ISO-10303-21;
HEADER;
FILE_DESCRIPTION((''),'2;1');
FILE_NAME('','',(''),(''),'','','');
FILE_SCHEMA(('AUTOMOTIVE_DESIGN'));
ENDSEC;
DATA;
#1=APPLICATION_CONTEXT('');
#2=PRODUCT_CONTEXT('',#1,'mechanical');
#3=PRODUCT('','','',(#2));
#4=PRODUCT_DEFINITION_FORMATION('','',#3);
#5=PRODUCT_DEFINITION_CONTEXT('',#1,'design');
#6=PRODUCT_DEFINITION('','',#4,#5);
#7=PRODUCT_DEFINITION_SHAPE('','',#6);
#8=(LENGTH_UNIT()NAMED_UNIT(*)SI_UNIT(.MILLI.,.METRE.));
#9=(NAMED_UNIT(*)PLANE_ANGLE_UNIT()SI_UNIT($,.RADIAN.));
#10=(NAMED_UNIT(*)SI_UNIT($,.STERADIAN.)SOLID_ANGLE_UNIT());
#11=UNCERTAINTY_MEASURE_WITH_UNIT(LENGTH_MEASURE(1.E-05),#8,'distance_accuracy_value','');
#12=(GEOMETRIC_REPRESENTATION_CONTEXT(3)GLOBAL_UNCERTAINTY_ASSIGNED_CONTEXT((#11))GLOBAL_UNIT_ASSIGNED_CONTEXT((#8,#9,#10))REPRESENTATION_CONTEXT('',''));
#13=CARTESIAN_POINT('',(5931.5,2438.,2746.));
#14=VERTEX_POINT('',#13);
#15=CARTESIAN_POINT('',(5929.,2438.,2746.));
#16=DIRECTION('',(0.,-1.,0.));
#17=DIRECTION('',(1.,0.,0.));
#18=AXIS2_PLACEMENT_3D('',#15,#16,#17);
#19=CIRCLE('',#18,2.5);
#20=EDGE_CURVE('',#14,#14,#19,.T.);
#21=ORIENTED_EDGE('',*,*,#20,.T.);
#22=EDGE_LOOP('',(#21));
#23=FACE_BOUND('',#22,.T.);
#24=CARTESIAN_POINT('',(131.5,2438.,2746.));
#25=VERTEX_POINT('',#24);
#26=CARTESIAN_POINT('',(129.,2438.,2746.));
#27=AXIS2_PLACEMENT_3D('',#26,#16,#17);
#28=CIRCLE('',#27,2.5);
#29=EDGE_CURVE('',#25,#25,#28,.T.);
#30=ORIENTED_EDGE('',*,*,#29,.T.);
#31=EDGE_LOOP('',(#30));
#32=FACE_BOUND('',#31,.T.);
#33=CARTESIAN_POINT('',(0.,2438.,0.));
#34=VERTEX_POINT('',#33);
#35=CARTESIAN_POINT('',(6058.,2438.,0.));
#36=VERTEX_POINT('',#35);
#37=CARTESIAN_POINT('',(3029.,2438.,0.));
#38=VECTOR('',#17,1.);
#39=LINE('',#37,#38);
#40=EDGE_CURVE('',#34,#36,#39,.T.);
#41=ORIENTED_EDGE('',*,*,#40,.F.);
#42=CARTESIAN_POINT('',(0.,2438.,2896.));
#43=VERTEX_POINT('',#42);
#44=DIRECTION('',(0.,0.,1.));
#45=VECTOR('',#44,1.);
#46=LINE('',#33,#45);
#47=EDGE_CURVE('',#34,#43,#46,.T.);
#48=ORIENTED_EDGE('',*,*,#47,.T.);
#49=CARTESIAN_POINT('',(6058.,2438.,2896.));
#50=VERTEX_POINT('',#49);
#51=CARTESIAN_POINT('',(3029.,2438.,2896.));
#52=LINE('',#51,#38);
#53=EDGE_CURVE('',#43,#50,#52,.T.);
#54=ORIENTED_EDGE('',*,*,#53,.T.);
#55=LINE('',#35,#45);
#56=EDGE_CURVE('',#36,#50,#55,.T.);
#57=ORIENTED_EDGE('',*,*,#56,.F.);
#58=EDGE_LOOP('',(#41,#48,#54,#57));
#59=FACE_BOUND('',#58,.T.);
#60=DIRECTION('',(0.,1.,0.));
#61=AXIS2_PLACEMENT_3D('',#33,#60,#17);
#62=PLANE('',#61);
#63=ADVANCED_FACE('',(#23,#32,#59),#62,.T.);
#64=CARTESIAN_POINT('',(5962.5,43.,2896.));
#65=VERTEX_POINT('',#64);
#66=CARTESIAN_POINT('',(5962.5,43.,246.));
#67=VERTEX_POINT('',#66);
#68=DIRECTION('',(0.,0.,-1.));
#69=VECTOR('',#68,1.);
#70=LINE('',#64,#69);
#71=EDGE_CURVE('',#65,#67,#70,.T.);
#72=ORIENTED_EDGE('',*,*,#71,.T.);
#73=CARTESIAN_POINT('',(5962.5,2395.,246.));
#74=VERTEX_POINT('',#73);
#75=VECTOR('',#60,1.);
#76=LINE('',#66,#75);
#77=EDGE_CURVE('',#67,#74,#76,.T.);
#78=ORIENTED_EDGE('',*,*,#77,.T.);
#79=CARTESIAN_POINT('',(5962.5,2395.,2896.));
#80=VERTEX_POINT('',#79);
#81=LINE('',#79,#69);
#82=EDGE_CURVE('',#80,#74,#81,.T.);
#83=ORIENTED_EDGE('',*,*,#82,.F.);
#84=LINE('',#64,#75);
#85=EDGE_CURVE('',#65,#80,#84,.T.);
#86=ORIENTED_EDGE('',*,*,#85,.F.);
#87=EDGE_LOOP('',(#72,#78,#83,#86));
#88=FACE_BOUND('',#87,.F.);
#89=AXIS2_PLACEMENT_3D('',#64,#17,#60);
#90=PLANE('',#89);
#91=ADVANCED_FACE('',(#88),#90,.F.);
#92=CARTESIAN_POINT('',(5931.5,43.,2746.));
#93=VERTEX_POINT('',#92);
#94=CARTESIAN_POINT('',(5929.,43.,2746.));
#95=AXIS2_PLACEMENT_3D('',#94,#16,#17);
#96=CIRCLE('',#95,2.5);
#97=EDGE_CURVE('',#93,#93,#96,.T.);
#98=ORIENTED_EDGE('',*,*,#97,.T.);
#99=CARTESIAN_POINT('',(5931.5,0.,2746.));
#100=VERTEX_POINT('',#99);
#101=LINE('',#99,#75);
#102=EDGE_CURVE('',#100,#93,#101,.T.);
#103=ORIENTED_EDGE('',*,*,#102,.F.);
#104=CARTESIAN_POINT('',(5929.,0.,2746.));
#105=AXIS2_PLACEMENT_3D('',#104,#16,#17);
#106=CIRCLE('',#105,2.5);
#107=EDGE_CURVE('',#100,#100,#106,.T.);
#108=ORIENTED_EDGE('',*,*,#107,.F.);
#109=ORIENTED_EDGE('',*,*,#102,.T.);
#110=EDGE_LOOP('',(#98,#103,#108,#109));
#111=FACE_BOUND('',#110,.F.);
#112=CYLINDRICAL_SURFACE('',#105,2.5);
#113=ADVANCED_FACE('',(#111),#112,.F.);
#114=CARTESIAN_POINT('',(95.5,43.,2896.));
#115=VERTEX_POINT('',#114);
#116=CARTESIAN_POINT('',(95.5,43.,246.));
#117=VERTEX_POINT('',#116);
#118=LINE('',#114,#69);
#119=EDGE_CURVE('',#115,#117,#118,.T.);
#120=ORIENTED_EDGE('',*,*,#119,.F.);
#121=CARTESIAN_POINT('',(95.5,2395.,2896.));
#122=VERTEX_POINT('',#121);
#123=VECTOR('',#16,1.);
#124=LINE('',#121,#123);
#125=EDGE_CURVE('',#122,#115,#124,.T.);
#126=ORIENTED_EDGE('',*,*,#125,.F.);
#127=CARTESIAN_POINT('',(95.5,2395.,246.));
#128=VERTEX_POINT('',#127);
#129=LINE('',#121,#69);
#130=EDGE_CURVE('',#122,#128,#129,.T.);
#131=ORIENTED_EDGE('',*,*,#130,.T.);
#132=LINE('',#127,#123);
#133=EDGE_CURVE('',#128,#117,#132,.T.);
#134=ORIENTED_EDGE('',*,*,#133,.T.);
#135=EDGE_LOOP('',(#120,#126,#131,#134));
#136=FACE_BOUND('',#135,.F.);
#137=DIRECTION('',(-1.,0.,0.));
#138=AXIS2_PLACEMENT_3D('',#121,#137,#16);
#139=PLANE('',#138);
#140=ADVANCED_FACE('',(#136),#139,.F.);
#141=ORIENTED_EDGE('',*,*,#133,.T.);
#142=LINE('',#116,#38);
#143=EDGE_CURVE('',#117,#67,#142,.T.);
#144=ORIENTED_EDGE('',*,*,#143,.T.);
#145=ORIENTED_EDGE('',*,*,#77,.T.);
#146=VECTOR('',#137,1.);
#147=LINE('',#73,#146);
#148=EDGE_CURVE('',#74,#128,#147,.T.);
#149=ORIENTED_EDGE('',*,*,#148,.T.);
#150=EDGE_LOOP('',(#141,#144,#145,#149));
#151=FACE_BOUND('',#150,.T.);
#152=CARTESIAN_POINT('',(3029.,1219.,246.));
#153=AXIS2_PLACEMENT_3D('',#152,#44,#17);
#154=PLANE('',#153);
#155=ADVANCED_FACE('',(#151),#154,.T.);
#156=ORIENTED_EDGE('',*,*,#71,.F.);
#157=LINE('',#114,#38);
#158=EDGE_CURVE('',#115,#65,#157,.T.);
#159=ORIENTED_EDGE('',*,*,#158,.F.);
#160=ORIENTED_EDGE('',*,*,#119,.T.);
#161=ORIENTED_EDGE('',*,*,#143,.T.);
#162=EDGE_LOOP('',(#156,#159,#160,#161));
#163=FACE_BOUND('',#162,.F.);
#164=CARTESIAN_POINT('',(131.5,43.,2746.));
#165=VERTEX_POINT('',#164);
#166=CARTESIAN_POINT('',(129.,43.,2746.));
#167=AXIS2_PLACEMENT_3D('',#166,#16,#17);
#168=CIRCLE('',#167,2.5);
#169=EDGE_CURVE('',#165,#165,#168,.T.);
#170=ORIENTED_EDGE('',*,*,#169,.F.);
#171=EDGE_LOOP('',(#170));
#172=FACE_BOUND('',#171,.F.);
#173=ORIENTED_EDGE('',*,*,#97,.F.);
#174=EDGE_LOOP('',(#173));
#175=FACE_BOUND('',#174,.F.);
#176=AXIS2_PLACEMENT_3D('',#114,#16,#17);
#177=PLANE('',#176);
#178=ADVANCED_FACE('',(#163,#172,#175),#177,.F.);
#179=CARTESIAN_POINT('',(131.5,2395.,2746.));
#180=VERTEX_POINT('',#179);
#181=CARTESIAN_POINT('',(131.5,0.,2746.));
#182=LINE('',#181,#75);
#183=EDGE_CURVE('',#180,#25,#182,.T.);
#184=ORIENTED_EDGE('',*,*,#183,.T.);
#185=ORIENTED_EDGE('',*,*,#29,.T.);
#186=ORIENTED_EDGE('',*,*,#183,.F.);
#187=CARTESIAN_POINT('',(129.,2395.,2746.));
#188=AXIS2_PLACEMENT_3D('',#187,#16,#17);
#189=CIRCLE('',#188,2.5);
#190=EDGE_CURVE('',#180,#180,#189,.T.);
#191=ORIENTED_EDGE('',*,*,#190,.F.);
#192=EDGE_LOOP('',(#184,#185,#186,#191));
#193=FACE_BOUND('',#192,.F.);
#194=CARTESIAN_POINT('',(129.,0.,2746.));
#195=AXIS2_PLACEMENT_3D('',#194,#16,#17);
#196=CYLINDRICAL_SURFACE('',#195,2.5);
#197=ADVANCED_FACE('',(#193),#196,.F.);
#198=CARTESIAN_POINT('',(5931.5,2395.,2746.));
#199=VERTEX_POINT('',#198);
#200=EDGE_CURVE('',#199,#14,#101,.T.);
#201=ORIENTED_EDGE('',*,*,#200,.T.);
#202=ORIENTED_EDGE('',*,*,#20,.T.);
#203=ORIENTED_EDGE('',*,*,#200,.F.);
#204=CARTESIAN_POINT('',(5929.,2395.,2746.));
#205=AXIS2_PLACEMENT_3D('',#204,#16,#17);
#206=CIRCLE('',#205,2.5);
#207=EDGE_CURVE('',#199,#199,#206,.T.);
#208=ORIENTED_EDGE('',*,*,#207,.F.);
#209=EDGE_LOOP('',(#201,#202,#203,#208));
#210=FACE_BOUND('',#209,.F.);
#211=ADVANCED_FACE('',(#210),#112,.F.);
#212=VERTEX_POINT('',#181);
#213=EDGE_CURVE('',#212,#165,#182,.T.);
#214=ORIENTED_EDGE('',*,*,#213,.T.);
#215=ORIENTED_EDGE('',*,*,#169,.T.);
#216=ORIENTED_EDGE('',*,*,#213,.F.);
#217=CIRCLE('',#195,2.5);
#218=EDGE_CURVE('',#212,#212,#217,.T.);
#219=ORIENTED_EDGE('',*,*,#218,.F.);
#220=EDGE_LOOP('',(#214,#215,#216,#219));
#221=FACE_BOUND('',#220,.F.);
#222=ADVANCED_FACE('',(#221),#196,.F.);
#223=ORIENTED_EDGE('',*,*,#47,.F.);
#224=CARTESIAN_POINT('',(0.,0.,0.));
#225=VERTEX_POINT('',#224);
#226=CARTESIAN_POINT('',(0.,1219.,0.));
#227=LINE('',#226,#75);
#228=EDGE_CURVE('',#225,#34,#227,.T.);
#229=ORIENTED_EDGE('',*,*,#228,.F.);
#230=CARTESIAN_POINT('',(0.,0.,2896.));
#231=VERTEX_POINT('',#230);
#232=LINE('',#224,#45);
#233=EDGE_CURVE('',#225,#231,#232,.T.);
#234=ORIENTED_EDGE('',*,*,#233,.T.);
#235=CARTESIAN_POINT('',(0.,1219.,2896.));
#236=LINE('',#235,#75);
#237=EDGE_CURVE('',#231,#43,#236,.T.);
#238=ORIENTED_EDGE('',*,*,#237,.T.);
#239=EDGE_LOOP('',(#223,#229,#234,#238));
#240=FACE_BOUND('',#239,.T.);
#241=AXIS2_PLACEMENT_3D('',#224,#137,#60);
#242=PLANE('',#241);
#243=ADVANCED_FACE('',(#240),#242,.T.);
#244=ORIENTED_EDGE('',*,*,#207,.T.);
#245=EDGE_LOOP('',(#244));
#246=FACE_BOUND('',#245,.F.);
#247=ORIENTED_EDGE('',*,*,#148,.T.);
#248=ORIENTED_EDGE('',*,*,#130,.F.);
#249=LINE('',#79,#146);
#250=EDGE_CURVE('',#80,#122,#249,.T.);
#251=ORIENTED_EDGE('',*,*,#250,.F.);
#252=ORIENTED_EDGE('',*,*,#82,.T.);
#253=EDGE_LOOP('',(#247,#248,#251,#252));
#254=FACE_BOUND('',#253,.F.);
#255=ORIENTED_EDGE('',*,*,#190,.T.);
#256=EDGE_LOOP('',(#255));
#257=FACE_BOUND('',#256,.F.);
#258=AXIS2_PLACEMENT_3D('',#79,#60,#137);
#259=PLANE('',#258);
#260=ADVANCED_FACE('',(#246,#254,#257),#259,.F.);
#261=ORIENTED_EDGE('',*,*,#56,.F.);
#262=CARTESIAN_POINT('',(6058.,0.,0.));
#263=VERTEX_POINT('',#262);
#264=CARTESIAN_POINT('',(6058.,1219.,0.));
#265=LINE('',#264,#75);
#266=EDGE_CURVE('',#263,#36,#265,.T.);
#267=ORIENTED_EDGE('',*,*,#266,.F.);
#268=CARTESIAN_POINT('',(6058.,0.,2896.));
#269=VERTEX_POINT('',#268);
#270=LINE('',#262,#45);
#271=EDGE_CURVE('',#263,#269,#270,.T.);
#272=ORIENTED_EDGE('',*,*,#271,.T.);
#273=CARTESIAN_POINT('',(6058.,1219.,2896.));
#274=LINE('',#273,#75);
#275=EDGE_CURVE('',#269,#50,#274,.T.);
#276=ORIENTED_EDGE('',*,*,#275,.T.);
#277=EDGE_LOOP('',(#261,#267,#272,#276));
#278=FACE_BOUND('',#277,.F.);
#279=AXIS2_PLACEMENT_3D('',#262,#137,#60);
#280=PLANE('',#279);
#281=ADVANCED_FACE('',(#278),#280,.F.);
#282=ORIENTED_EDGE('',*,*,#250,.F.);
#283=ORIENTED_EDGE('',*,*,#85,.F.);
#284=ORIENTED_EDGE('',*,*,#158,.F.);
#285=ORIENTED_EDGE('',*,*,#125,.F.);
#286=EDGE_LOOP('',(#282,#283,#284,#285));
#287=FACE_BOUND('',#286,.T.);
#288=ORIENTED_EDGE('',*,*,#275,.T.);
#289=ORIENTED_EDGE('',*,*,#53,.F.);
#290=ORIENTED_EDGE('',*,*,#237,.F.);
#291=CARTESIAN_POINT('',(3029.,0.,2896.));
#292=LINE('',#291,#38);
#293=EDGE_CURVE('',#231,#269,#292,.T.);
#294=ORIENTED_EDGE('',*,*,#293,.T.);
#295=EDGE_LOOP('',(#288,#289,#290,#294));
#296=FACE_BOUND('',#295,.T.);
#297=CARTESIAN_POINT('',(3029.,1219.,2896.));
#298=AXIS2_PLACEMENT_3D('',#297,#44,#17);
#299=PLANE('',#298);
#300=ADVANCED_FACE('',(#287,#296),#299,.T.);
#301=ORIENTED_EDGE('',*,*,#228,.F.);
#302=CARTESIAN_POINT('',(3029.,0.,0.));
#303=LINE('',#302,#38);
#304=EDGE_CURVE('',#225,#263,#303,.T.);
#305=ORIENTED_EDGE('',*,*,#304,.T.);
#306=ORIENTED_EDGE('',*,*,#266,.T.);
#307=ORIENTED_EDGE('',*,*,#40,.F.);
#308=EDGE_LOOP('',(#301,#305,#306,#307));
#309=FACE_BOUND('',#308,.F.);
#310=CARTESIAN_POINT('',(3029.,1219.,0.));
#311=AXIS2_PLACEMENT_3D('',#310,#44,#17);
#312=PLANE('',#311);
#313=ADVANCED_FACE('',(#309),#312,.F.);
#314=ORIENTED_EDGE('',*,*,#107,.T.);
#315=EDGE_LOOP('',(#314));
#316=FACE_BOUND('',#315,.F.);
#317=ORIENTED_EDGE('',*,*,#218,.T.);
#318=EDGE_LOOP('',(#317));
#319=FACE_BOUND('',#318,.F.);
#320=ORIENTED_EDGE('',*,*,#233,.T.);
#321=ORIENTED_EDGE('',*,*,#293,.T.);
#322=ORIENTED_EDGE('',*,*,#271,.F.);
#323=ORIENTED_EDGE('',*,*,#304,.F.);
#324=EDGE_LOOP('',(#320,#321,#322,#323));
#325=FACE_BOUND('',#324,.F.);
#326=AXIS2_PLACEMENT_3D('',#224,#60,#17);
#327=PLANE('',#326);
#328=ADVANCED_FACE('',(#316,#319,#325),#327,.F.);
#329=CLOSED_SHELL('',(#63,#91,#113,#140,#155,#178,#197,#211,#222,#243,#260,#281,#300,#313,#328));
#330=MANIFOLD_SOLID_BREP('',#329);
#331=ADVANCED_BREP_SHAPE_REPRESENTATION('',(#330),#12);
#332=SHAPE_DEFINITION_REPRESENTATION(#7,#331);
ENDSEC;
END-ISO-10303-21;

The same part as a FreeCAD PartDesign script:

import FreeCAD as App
import Part
import Sketcher

V = App.Vector

doc = App.newDocument("Part")
body = doc.addObject("PartDesign::Body", "Body")

sketch1 = doc.addObject("Sketcher::SketchObject", "Sketch")
body.addObject(sketch1)
sketch1.AttachmentSupport = (doc.XY_Plane, [""])
sketch1.MapMode = "FlatFace"
sketch1.addGeometry([
    Part.LineSegment(V(0, 2438, 0), V(0, 0, 0)),
    Part.LineSegment(V(0, 0, 0), V(6058, 0, 0)),
    Part.LineSegment(V(6058, 0, 0), V(6058, 2438, 0)),
    Part.LineSegment(V(6058, 2438, 0), V(0, 2438, 0)),
], False)
sketch1.addConstraint([
    Sketcher.Constraint("Coincident", 0, 2, 1, 1),
    Sketcher.Constraint("Coincident", 1, 2, 2, 1),
    Sketcher.Constraint("Coincident", 2, 2, 3, 1),
    Sketcher.Constraint("Coincident", 3, 2, 0, 1),
    Sketcher.Constraint("Vertical", 0),
    Sketcher.Constraint("Horizontal", 1),
    Sketcher.Constraint("Vertical", 2),
    Sketcher.Constraint("Horizontal", 3),
    Sketcher.Constraint("Coincident", 0, 2, -1, 1),
    Sketcher.Constraint("DistanceX", 1, 1, 1, 2, 6058.0),
    Sketcher.Constraint("DistanceY", 0, 2, 0, 1, 2438.0),
])
pad1 = doc.addObject("PartDesign::Pad", "Pad")
body.addObject(pad1)
pad1.Profile = sketch1
pad1.Length = 2896

sketch2 = doc.addObject("Sketcher::SketchObject", "Sketch001")
body.addObject(sketch2)
sketch2.AttachmentSupport = (doc.XY_Plane, [""])
sketch2.MapMode = "FlatFace"
sketch2.AttachmentOffset = App.Placement(V(0, 0, 2896), App.Rotation())
sketch2.addGeometry([
    Part.LineSegment(V(96, 2395, 0), V(96, 43, 0)),
    Part.LineSegment(V(96, 43, 0), V(5962, 43, 0)),
    Part.LineSegment(V(5962, 43, 0), V(5962, 2395, 0)),
    Part.LineSegment(V(5962, 2395, 0), V(96, 2395, 0)),
], False)
sketch2.addConstraint([
    Sketcher.Constraint("Coincident", 0, 2, 1, 1),
    Sketcher.Constraint("Coincident", 1, 2, 2, 1),
    Sketcher.Constraint("Coincident", 2, 2, 3, 1),
    Sketcher.Constraint("Coincident", 3, 2, 0, 1),
    Sketcher.Constraint("Vertical", 0),
    Sketcher.Constraint("Horizontal", 1),
    Sketcher.Constraint("Vertical", 2),
    Sketcher.Constraint("Horizontal", 3),
    Sketcher.Constraint("DistanceX", 1, 1, 1, 2, 5867.0),
    Sketcher.Constraint("DistanceY", 0, 2, 0, 1, 2352.0),
    Sketcher.Constraint("DistanceY", -1, 1, 0, 2, 43.0),
    Sketcher.Constraint("DistanceX", -1, 1, 0, 2, 95.5),
])
pocket1 = doc.addObject("PartDesign::Pocket", "Pocket")
body.addObject(pocket1)
pocket1.Profile = sketch2
pocket1.Length = 2650

sketch3 = doc.addObject("Sketcher::SketchObject", "Sketch002")
body.addObject(sketch3)
sketch3.AttachmentSupport = (doc.XZ_Plane, [""])
sketch3.MapMode = "FlatFace"
sketch3.addGeometry([
    Part.Circle(V(129, 2746, 0), V(0, 0, 1), 2.5),
    Part.Circle(V(5929, 2746, 0), V(0, 0, 1), 2.5),
], False)
sketch3.addConstraint([
    Sketcher.Constraint("Equal", 0, 1),
    Sketcher.Constraint("Horizontal", 0, 3, 1, 3),
    Sketcher.Constraint("Diameter", 0, 5.0),
    Sketcher.Constraint("DistanceX", -1, 1, 0, 3, 129.0),
    Sketcher.Constraint("DistanceY", -1, 1, 0, 3, 2746.0),
    Sketcher.Constraint("DistanceX", -1, 1, 1, 3, 5929.0),
])
pocket2 = doc.addObject("PartDesign::Pocket", "Pocket001")
body.addObject(pocket2)
pocket2.Profile = sketch3
pocket2.Type = "ThroughAll"

doc.recompute()
